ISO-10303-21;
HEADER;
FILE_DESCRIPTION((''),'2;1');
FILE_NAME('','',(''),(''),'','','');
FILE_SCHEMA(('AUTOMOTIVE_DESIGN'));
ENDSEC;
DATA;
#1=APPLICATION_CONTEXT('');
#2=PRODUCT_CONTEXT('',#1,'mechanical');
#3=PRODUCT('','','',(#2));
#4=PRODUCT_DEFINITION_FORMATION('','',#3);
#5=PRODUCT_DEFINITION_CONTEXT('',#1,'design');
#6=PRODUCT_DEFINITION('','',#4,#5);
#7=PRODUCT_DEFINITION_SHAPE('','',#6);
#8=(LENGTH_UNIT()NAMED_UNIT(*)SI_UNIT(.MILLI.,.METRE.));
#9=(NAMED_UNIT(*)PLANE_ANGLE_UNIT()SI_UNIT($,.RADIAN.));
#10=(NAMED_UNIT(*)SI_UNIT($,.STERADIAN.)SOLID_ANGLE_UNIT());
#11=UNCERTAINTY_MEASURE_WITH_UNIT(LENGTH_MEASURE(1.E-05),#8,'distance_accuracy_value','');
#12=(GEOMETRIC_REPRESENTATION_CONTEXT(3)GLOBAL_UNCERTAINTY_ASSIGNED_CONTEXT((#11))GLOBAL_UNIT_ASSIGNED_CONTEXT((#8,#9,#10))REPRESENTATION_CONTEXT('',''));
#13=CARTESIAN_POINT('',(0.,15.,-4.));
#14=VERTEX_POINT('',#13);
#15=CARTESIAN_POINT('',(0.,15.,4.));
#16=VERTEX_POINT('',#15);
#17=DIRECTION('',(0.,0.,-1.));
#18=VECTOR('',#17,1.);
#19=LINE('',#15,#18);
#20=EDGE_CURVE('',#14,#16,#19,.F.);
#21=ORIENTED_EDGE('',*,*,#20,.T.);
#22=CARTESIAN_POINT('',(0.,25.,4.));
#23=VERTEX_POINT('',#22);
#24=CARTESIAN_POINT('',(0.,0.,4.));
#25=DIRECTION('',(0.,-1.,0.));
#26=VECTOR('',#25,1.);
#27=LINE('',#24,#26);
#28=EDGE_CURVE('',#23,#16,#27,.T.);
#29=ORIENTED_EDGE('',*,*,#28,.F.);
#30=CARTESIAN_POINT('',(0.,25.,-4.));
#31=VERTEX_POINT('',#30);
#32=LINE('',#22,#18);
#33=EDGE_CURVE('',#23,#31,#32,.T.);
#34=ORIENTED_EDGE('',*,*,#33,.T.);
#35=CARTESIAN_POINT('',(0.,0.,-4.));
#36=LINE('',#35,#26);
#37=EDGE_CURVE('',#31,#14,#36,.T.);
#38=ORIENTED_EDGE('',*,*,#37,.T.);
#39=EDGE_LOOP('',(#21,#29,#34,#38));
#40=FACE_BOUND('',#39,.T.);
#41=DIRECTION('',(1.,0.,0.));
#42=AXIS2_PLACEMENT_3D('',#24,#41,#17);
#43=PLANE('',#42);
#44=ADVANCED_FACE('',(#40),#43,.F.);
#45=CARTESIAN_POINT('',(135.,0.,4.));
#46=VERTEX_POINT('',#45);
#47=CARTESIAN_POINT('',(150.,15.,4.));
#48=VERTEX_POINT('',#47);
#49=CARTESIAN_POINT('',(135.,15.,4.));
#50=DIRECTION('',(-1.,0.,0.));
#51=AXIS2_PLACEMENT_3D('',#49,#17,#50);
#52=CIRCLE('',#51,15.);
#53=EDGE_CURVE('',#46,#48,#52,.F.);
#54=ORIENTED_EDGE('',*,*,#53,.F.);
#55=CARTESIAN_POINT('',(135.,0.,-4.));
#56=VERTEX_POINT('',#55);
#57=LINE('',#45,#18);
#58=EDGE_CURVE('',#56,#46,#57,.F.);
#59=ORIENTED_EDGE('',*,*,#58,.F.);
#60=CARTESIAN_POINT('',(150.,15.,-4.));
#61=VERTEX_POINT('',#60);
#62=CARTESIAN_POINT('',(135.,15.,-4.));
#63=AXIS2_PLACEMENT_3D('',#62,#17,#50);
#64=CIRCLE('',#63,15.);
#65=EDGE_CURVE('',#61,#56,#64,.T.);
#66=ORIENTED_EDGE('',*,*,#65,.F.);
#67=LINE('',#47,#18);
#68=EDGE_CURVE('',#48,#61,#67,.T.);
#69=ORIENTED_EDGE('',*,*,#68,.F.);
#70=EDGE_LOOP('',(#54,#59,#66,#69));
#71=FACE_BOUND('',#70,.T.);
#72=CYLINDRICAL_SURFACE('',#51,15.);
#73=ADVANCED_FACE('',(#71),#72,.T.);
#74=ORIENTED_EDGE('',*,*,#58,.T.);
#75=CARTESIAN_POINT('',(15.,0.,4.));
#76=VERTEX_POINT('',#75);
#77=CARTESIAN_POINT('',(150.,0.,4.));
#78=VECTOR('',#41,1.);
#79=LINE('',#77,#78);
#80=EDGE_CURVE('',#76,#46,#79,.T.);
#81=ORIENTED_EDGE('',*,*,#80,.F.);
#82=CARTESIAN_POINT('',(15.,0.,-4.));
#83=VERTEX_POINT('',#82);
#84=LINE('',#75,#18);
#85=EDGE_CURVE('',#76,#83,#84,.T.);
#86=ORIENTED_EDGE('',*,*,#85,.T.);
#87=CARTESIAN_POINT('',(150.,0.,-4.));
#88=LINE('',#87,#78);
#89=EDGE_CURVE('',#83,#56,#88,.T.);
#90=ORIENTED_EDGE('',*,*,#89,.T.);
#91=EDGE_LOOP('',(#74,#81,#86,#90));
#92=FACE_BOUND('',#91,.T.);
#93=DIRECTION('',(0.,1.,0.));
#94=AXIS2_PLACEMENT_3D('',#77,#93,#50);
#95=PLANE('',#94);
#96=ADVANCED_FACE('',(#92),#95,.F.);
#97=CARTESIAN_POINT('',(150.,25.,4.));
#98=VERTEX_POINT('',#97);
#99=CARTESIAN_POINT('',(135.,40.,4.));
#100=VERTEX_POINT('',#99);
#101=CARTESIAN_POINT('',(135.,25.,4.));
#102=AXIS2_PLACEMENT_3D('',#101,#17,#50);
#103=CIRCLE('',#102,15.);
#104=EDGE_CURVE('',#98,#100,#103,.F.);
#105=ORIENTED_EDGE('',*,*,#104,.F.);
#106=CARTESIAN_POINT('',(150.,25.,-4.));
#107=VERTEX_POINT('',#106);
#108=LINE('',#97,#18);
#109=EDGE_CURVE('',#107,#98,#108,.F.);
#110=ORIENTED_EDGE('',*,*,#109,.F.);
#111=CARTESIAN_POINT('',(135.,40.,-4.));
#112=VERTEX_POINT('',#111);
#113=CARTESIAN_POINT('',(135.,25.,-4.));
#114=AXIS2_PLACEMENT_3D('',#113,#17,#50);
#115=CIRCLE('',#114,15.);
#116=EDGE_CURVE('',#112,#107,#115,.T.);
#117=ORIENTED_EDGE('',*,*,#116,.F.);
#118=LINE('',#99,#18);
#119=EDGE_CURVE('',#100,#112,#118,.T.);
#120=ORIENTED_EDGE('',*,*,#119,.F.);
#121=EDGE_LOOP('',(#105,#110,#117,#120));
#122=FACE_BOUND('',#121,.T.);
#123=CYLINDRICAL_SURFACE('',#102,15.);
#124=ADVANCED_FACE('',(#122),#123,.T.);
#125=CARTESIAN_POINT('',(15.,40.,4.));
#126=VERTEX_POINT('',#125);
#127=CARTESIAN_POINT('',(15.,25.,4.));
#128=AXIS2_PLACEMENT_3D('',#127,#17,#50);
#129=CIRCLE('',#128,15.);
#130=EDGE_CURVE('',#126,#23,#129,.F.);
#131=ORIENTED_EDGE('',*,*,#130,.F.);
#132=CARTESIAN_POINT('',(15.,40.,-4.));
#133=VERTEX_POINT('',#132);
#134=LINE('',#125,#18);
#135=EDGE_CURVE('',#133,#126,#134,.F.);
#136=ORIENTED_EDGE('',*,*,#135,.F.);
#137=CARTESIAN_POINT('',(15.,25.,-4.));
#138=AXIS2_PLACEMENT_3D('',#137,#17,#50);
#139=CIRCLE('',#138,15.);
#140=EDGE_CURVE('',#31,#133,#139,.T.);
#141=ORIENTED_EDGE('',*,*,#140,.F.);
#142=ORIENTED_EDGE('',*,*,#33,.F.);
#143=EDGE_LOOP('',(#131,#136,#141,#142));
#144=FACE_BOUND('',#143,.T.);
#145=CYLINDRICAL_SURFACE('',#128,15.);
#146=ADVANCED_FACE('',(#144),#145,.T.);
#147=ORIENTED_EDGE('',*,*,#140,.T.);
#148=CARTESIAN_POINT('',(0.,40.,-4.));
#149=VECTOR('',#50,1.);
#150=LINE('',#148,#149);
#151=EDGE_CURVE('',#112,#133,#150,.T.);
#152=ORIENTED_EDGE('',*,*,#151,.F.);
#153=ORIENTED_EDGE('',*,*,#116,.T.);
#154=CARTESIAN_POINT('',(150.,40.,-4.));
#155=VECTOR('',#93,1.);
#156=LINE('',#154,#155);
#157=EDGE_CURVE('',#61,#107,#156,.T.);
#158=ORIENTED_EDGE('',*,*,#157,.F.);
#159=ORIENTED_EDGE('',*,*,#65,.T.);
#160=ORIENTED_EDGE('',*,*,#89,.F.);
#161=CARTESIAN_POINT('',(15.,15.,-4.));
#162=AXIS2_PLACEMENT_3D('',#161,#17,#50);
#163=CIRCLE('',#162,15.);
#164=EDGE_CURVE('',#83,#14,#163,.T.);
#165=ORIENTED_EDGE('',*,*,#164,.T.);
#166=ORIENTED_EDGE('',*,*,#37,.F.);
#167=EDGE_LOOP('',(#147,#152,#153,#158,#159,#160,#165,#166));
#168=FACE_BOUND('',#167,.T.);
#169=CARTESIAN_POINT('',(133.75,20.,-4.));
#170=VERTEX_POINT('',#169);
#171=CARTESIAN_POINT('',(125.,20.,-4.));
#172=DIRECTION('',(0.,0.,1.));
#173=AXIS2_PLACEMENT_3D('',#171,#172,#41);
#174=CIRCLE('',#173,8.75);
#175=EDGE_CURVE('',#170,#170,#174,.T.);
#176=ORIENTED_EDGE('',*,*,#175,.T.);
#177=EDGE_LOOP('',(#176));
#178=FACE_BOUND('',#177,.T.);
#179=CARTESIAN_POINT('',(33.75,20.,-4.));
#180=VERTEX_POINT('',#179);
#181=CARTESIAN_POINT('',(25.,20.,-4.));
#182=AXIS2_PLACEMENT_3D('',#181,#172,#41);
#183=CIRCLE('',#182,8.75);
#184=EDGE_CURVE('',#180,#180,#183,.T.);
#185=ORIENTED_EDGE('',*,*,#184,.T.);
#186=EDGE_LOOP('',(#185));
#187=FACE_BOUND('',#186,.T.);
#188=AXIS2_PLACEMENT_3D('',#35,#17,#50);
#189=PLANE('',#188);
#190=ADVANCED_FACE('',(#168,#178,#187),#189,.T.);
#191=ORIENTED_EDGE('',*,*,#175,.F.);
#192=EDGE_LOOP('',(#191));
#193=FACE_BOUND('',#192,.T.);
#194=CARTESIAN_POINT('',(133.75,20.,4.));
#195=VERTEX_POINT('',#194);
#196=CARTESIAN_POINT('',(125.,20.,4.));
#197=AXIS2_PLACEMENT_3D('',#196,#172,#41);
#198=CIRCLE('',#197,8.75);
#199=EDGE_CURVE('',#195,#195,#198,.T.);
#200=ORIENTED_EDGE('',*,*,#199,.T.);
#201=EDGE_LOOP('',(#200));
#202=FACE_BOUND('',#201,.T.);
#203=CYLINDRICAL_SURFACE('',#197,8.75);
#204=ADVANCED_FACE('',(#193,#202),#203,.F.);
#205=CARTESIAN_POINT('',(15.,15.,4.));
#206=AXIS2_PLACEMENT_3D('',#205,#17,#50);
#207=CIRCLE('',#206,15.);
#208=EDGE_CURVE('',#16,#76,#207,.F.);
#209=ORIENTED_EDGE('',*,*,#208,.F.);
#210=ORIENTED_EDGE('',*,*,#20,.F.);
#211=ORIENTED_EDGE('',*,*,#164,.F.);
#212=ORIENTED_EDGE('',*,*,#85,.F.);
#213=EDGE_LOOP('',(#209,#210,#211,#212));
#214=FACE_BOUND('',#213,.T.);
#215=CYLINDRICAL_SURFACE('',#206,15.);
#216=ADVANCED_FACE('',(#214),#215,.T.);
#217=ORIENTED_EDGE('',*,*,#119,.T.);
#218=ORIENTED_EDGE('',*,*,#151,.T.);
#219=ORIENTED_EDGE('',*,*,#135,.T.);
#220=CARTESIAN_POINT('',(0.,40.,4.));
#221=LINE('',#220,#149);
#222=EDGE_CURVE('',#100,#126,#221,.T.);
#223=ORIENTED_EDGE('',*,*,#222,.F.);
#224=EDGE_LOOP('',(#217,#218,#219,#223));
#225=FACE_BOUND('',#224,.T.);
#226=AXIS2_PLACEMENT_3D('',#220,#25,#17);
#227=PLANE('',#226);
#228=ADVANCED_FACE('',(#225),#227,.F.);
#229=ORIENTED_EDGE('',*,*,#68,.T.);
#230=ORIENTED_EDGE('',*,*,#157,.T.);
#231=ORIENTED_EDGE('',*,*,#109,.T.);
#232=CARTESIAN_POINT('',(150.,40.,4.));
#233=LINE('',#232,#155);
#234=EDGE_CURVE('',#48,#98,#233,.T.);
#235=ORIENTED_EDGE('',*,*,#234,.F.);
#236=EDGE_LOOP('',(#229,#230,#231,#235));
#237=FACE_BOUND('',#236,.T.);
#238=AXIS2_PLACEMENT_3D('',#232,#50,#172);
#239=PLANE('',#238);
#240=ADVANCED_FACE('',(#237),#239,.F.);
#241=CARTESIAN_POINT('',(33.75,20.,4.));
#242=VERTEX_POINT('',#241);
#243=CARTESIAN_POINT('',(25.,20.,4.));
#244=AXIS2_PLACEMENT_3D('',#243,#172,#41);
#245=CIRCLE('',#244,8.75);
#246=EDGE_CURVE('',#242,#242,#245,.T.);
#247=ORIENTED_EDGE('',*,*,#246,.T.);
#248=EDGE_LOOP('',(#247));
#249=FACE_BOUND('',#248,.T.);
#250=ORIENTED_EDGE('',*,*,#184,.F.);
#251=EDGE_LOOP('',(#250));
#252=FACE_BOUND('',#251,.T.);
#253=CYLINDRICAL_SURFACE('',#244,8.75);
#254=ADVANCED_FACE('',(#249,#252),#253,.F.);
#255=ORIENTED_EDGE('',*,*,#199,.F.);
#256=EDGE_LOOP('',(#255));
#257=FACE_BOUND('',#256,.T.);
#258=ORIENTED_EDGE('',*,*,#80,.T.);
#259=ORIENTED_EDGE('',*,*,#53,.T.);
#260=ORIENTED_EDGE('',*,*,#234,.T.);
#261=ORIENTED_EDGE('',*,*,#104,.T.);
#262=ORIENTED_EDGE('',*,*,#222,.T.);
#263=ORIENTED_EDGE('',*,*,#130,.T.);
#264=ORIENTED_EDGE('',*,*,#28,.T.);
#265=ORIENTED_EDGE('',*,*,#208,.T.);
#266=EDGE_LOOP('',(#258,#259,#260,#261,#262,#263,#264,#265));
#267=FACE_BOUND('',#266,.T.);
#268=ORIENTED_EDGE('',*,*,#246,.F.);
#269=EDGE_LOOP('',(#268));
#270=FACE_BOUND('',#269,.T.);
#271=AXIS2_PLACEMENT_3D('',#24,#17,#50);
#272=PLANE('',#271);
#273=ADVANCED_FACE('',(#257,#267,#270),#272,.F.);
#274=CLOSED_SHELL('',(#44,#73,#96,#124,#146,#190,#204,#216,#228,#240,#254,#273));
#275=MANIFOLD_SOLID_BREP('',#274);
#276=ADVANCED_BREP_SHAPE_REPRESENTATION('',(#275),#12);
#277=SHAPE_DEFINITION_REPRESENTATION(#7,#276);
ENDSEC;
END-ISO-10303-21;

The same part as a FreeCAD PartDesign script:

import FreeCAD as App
import Part
import Sketcher

V = App.Vector


def edges_at(feature, points):
    """Names of the edges that pass closest to the given points."""
    edges = feature.Shape.Edges
    near = lambda p: min(range(len(edges)), key=lambda i: edges[i].distToShape(Part.Vertex(*p))[0])
    return sorted({f"Edge{near(p) + 1}" for p in points})


def add_polygon(sketch, points):
    """Adds a closed chain of lines whose ends are joined by coincident constraints."""
    first, n = sketch.GeometryCount, len(points)
    for a, b in zip(points, points[1:] + points[:1]):
        sketch.addGeometry(Part.LineSegment(App.Vector(*a, 0), App.Vector(*b, 0)), False)
    for i in range(n):
        sketch.addConstraint(Sketcher.Constraint("Coincident", first + i, 2, first + (i + 1) % n, 1))

doc = App.newDocument("Part")
body = doc.addObject("PartDesign::Body", "Body")

# Sketch on XY plane
sketch1 = doc.addObject("Sketcher::SketchObject", "Sketch")
body.addObject(sketch1)
sketch1.AttachmentSupport = (doc.XY_Plane, [""])
sketch1.MapMode = "FlatFace"
add_polygon(sketch1, [(0, 40), (0, 0), (150, 0), (150, 40)])  # lines 0-3
sketch1.addConstraint(Sketcher.Constraint("Vertical", 0))
sketch1.addConstraint(Sketcher.Constraint("Horizontal", 1))
sketch1.addConstraint(Sketcher.Constraint("Vertical", 2))
sketch1.addConstraint(Sketcher.Constraint("Horizontal", 3))
sketch1.addConstraint(Sketcher.Constraint("Coincident", 0, 2, -1, 1))
sketch1.addConstraint(Sketcher.Constraint("DistanceX", 1, 1, 1, 2, 150.0))
sketch1.addConstraint(Sketcher.Constraint("DistanceY", 0, 2, 0, 1, 40.0))
pad1 = doc.addObject("PartDesign::Pad", "Pad")
body.addObject(pad1)
pad1.Profile = sketch1
pad1.Length = 8
pad1.Midplane = True
doc.recompute()

fillet = doc.addObject("PartDesign::Fillet", "Fillet")
body.addObject(fillet)
fillet.Base = (pad1, edges_at(pad1, [
    (0, 0, 0),
    (0, 40, 0),
    (150, 40, 0),
    (150, 0, 0),
]))
fillet.Radius = 15

# Sketch on XY plane
sketch2 = doc.addObject("Sketcher::SketchObject", "Sketch001")
body.addObject(sketch2)
sketch2.AttachmentSupport = (doc.XY_Plane, [""])
sketch2.MapMode = "FlatFace"
sketch2.AttachmentOffset = App.Placement(V(0, 0, 4), App.Rotation())
sketch2.addGeometry(Part.Circle(V(25, 20, 0), V(0, 0, 1), 9), False)
sketch2.addGeometry(Part.Circle(V(125, 20, 0), V(0, 0, 1), 9), False)
sketch2.addConstraint(Sketcher.Constraint("Equal", 0, 1))
sketch2.addConstraint(Sketcher.Constraint("Horizontal", 0, 3, 1, 3))
sketch2.addConstraint(Sketcher.Constraint("Diameter", 0, 17.5))
sketch2.addConstraint(Sketcher.Constraint("DistanceX", -1, 1, 0, 3, 25.0))
sketch2.addConstraint(Sketcher.Constraint("DistanceY", -1, 1, 0, 3, 20.0))
sketch2.addConstraint(Sketcher.Constraint("DistanceX", -1, 1, 1, 3, 125.0))
doc.recompute()
hole = doc.addObject("PartDesign::Hole", "Hole")
body.addObject(hole)
hole.Profile = sketch2
hole.ThreadType = "None"
hole.Diameter = 17.5
hole.DepthType = "ThroughAll"

doc.recompute()
